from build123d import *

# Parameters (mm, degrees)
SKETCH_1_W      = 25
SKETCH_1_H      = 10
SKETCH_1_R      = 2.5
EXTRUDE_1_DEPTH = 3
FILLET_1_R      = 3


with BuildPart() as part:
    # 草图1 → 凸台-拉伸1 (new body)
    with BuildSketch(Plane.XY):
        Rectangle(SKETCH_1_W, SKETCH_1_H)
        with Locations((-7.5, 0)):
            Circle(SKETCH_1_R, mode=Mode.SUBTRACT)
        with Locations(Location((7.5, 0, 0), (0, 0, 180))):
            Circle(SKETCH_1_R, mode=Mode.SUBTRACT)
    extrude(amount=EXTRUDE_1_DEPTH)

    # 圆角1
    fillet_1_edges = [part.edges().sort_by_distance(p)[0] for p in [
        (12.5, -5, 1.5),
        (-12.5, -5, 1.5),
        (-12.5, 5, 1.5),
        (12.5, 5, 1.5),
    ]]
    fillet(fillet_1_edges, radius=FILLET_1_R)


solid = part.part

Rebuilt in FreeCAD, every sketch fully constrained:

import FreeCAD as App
import Part
import Sketcher

V = App.Vector
Q = App.Units.Quantity


def edges_at(feature, points):
    """Names of the edges that pass closest to the given points."""
    edges = feature.Shape.Edges
    near = lambda p: min(range(len(edges)), key=lambda i: edges[i].distToShape(Part.Vertex(*p))[0])
    return sorted({f"Edge{near(p) + 1}" for p in points})


def add_polygon(sketch, points):
    """Adds a closed chain of lines whose ends are joined by coincident constraints."""
    first, n = sketch.GeometryCount, len(points)
    for a, b in zip(points, points[1:] + points[:1]):
        sketch.addGeometry(Part.LineSegment(App.Vector(*a, 0), App.Vector(*b, 0)), False)
    for i in range(n):
        sketch.addConstraint(Sketcher.Constraint("Coincident", first + i, 2, first + (i + 1) % n, 1))

doc = App.newDocument("Part")
body = doc.addObject("PartDesign::Body", "Body")

# Sketch on XY plane
sketch1 = body.newObject("Sketcher::SketchObject", "Sketch")
sketch1.AttachmentSupport = (doc.getObject("XY_Plane"), [""])
sketch1.MapMode = "FlatFace"
add_polygon(sketch1, [(-12.5, 5), (-12.5, -5), (12.5, -5), (12.5, 5)])  # lines 0-3
sketch1.addGeometry(Part.Circle(V(-7.5, 0, 0), V(0, 0, 1), 2.5), False)  # 4
sketch1.addGeometry(Part.Circle(V(7.5, 0, 0), V(0, 0, 1), 2.5), False)  # 5
sketch1.addConstraint(Sketcher.Constraint("Vertical", 0))
sketch1.addConstraint(Sketcher.Constraint("Horizontal", 1))
sketch1.addConstraint(Sketcher.Constraint("Vertical", 2))
sketch1.addConstraint(Sketcher.Constraint("Horizontal", 3))
sketch1.addConstraint(Sketcher.Constraint("Equal", 4, 5))
sketch1.addConstraint(Sketcher.Constraint("Symmetric", 4, 3, 5, 3, -1, 1))
sketch1.addConstraint(Sketcher.Constraint("Symmetric", 0, 2, 2, 2, -1, 1))
sketch1.addConstraint(Sketcher.Constraint("PointOnObject", 4, 3, -1))
sketch1.addConstraint(Sketcher.Constraint("Diameter", 4, Q("5 mm")))
sketch1.addConstraint(Sketcher.Constraint("DistanceX", 1, 1, 1, 2, Q("25 mm")))
sketch1.addConstraint(Sketcher.Constraint("DistanceY", 0, 2, 0, 1, Q("10 mm")))
sketch1.addConstraint(Sketcher.Constraint("DistanceX", 4, 3, 5, 3, Q("15 mm")))
pad1 = body.newObject("PartDesign::Pad", "Pad")
pad1.Profile = sketch1
pad1.Length = 3
doc.recompute()

fillet = body.newObject("PartDesign::Fillet", "Fillet")
fillet.Base = (pad1, edges_at(pad1, [
    (12.5, -5, 1.5),
    (-12.5, -5, 1.5),
    (-12.5, 5, 1.5),
    (12.5, 5, 1.5),
]))
fillet.Radius = 3

doc.recompute()
